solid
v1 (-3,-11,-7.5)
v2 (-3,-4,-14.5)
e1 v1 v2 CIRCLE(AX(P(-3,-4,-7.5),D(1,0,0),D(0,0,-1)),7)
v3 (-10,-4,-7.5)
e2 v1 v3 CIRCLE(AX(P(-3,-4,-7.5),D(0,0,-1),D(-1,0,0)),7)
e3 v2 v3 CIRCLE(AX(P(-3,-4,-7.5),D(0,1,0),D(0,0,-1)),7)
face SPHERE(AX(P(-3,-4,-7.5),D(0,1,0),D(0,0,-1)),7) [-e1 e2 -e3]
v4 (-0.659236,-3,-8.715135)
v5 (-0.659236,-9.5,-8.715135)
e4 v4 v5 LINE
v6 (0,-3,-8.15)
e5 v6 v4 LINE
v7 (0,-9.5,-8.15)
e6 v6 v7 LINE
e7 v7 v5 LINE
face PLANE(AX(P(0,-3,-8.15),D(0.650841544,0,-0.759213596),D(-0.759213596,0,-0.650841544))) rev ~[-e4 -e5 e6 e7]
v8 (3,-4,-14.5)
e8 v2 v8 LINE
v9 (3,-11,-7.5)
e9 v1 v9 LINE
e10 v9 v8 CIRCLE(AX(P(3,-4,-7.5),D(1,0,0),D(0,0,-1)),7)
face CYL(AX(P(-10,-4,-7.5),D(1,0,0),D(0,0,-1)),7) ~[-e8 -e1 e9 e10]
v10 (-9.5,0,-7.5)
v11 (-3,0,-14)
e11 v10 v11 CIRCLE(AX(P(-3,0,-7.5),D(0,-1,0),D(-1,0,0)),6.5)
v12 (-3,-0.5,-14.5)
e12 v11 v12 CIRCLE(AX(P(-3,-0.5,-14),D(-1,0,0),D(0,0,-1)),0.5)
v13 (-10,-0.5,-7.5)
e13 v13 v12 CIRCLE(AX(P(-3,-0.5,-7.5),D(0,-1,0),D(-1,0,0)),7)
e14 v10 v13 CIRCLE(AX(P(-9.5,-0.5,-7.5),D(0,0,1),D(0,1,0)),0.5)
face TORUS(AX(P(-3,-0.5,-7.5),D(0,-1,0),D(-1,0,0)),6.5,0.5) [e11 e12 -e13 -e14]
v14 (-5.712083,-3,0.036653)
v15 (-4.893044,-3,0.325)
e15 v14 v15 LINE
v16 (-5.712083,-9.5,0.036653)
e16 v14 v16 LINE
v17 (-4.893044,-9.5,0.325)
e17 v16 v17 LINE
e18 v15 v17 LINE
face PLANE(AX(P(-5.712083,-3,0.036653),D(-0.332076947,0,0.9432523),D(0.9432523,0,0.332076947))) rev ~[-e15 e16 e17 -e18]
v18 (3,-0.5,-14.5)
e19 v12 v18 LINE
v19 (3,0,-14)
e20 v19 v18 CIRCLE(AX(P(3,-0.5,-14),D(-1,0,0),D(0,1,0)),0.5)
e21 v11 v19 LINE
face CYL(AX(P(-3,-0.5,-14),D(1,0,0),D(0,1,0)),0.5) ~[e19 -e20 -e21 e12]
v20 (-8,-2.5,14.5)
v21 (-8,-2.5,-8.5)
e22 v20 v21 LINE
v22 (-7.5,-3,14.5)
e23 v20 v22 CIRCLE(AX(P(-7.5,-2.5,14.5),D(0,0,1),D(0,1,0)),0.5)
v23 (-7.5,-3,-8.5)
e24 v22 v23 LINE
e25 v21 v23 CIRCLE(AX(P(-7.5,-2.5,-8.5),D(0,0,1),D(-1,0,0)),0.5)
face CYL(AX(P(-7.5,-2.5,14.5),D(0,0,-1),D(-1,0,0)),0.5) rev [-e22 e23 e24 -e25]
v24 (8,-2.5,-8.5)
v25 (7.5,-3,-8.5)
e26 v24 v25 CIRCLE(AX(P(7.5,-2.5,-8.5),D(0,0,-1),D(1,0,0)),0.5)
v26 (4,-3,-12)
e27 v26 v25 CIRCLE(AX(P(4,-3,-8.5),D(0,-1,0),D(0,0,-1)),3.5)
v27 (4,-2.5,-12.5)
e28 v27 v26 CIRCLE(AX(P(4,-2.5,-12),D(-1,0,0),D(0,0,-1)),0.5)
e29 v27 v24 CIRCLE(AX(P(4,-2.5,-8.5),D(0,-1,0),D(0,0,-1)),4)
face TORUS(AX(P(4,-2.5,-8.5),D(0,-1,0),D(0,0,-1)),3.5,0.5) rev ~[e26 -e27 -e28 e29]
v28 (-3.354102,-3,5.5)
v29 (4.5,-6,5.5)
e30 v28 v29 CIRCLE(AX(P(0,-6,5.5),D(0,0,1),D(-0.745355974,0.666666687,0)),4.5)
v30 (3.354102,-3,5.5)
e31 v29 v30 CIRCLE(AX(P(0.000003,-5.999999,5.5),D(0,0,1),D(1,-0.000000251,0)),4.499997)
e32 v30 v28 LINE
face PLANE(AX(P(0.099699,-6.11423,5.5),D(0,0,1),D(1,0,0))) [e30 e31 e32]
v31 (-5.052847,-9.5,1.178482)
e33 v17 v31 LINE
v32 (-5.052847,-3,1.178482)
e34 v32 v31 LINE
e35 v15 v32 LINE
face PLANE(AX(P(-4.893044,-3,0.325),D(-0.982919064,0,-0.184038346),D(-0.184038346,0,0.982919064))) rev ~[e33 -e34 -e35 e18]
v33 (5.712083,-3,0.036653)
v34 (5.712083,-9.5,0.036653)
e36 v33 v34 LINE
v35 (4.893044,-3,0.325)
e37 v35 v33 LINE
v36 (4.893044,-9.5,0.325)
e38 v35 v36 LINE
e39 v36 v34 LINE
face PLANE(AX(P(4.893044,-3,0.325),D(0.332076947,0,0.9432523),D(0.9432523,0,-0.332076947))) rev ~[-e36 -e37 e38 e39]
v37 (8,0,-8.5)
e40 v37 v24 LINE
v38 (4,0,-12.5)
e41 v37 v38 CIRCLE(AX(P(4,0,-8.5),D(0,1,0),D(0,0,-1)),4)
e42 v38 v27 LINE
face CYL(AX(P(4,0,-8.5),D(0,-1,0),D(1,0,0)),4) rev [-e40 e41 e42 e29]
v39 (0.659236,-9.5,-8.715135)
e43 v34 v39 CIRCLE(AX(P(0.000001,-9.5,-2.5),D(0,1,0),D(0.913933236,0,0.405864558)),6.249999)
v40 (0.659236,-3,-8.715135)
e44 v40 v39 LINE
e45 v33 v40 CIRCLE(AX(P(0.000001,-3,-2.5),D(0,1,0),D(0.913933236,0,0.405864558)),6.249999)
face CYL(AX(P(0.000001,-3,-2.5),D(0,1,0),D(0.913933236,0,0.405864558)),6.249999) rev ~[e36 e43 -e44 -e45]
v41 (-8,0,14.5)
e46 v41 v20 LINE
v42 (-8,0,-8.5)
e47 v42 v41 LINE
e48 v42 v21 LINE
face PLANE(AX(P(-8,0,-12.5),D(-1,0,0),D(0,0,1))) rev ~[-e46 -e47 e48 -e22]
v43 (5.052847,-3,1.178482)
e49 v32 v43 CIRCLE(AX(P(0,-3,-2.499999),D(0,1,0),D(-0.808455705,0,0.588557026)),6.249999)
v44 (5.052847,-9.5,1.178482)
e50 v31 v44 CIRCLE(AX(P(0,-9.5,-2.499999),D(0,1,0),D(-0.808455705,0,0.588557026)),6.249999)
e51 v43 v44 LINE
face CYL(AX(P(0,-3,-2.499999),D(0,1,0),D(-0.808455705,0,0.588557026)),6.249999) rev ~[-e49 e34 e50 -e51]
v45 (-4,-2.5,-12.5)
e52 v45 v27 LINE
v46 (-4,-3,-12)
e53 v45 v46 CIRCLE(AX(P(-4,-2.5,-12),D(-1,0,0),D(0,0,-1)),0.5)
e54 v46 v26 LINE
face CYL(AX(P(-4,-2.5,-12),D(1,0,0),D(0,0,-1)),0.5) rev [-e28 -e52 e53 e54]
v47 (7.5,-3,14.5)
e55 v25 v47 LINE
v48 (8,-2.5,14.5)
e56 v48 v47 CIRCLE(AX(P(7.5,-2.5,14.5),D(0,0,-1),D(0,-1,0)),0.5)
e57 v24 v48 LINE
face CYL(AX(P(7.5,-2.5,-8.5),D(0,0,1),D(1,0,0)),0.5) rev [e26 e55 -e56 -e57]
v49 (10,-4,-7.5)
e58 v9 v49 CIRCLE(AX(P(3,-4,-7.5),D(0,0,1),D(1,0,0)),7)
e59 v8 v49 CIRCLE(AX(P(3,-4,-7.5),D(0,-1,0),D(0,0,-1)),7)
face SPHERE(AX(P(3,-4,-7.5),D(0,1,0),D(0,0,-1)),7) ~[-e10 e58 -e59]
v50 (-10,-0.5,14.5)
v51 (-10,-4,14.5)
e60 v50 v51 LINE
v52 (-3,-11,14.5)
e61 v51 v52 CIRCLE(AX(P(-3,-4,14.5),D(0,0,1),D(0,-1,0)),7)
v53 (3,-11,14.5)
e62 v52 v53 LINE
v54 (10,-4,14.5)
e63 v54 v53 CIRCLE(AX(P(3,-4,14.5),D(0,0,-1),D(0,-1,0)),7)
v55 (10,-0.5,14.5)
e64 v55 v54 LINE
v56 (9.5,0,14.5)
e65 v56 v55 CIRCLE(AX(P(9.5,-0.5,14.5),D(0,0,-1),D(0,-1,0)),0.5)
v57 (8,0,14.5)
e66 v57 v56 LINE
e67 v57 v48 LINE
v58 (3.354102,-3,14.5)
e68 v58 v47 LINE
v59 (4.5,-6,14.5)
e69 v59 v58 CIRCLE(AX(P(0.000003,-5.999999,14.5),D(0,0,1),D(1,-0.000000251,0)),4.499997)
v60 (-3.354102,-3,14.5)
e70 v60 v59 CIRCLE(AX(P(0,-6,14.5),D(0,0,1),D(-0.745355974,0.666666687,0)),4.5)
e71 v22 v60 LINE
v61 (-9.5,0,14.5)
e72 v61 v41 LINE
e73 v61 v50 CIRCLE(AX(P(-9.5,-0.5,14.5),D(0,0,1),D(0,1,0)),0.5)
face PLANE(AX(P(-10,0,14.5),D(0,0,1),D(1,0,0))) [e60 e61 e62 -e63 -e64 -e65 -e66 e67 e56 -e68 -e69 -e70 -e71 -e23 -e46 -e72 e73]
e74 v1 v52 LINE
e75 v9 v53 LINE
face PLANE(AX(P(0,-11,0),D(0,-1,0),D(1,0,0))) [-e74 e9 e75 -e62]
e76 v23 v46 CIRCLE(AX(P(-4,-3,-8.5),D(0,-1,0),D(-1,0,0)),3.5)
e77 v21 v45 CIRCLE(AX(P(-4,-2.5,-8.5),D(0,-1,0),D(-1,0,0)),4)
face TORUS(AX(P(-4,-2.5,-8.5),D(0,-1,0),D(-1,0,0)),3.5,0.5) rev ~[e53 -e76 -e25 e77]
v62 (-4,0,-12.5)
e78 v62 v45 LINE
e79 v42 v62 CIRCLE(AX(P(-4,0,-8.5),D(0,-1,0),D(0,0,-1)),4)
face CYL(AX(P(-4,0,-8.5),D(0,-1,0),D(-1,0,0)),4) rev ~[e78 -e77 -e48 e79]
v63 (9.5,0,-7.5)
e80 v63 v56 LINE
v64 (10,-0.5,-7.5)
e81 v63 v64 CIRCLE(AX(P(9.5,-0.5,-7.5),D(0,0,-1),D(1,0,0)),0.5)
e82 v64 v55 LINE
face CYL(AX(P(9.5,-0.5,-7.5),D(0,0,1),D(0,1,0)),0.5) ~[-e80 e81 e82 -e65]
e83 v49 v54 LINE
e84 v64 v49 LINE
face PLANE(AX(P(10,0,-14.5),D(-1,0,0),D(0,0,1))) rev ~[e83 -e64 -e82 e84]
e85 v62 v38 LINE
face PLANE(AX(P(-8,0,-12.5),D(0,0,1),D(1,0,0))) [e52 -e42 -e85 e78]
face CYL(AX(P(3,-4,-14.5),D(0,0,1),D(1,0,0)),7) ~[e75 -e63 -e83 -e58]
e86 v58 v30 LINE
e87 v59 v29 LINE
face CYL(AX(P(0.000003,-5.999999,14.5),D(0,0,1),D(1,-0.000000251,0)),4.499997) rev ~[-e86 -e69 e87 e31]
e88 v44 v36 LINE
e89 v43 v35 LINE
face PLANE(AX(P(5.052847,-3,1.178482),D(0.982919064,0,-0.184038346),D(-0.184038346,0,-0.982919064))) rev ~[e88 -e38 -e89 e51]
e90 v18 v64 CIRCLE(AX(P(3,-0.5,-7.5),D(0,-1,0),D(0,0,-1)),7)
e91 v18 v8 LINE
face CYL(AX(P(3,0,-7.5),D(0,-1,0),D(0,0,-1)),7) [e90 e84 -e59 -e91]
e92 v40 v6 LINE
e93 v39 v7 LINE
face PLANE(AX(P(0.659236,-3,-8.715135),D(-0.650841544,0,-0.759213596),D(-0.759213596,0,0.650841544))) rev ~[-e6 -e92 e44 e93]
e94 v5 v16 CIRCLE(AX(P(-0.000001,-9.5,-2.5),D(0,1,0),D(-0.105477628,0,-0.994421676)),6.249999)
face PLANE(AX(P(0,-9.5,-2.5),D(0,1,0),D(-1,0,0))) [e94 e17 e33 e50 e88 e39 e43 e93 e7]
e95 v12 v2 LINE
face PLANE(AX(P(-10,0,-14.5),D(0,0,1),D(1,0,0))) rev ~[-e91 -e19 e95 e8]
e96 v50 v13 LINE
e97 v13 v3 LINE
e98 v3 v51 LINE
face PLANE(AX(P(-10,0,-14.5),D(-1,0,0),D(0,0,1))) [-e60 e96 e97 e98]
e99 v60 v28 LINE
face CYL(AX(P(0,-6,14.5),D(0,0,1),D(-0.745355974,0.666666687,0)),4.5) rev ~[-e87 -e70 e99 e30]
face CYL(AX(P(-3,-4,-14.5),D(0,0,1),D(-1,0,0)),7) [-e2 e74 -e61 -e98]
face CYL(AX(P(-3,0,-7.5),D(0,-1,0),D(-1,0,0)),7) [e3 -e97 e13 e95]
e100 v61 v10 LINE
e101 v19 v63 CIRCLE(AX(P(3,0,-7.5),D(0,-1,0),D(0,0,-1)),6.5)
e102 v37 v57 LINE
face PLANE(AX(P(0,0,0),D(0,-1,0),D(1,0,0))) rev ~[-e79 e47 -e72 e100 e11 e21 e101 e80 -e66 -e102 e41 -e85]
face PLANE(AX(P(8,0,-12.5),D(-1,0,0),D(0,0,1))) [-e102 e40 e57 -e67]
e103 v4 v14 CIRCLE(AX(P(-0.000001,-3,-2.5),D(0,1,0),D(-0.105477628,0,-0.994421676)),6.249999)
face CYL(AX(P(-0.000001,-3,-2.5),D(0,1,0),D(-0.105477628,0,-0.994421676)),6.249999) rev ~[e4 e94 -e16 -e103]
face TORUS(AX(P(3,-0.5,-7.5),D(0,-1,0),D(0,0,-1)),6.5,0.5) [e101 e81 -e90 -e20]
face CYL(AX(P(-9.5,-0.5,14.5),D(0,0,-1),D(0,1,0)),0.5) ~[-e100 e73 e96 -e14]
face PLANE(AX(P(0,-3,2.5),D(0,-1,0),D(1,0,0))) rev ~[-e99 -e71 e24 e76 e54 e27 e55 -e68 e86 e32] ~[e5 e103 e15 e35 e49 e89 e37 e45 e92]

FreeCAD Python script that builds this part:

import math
import FreeCAD as App
import Part
import Sketcher
from FreeCAD import Vector
Q = App.Units.Quantity


def edges_at(feature, points):
    """Names of the edges that pass closest to the given points."""
    edges = feature.Shape.Edges
    near = lambda p: min(range(len(edges)), key=lambda i: edges[i].distToShape(Part.Vertex(*p))[0])
    return sorted({f"Edge{near(p) + 1}" for p in points})

doc = App.newDocument("Part")
body = doc.addObject("PartDesign::Body", "Body")

# Sketch on XZ plane
sketch1 = doc.addObject("Sketcher::SketchObject", "Sketch")
body.addObject(sketch1)
sketch1.AttachmentSupport = (doc.XZ_Plane, [""])
sketch1.MapMode = "FlatFace"
sketch1.addGeometry([
    Part.LineSegment(Vector(-10, 14, 0), Vector(-10, -14, 0)),
    Part.LineSegment(Vector(-10, -14, 0), Vector(10, -14, 0)),
    Part.LineSegment(Vector(10, -14, 0), Vector(10, 14, 0)),
    Part.LineSegment(Vector(10, 14, 0), Vector(-10, 14, 0)),
], False)
sketch1.addConstraint([
    Sketcher.Constraint("Coincident", 0, 2, 1, 1),
    Sketcher.Constraint("Coincident", 1, 2, 2, 1),
    Sketcher.Constraint("Coincident", 2, 2, 3, 1),
    Sketcher.Constraint("Coincident", 3, 2, 0, 1),
    Sketcher.Constraint("Vertical", 0),
    Sketcher.Constraint("Horizontal", 1),
    Sketcher.Constraint("Vertical", 2),
    Sketcher.Constraint("Horizontal", 3),
    Sketcher.Constraint("Symmetric", 0, 2, 2, 2, -1, 1),
    Sketcher.Constraint("DistanceX", 1, 1, 1, 2, Q("20 mm")),
    Sketcher.Constraint("DistanceY", 0, 2, 0, 1, Q("29 mm")),
])
pad1 = doc.addObject("PartDesign::Pad", "Pad")
body.addObject(pad1)
pad1.Profile = sketch1
pad1.Length = 11

# Sketch on XZ plane
sketch2 = doc.addObject("Sketcher::SketchObject", "Sketch001")
body.addObject(sketch2)
sketch2.AttachmentSupport = (doc.XZ_Plane, [""])
sketch2.MapMode = "FlatFace"
sketch2.addGeometry([
    Part.LineSegment(Vector(-8, 18, 0), Vector(-8, -12, 0)),
    Part.LineSegment(Vector(-8, -12, 0), Vector(8, -12, 0)),
    Part.LineSegment(Vector(8, -12, 0), Vector(8, 18, 0)),
    Part.LineSegment(Vector(8, 18, 0), Vector(-8, 18, 0)),
], False)
sketch2.addConstraint([
    Sketcher.Constraint("Coincident", 0, 2, 1, 1),
    Sketcher.Constraint("Coincident", 1, 2, 2, 1),
    Sketcher.Constraint("Coincident", 2, 2, 3, 1),
    Sketcher.Constraint("Coincident", 3, 2, 0, 1),
    Sketcher.Constraint("Vertical", 0),
    Sketcher.Constraint("Horizontal", 1),
    Sketcher.Constraint("Vertical", 2),
    Sketcher.Constraint("Horizontal", 3),
    Sketcher.Constraint("DistanceX", 1, 1, 1, 2, Q("16 mm")),
    Sketcher.Constraint("DistanceY", 0, 2, 0, 1, Q("30 mm")),
    Sketcher.Constraint("DistanceX", 0, 2, -1, 1, Q("8 mm")),
    Sketcher.Constraint("DistanceY", 0, 2, -1, 1, Q("12.5 mm")),
])
pocket1 = doc.addObject("PartDesign::Pocket", "Pocket")
body.addObject(pocket1)
pocket1.Profile = sketch2
pocket1.Length = 3
pocket1.Reversed = True

# Sketch on XZ plane
sketch3 = doc.addObject("Sketcher::SketchObject", "Sketch002")
body.addObject(sketch3)
sketch3.AttachmentSupport = (doc.XZ_Plane, [""])
sketch3.MapMode = "FlatFace"
sketch3.AttachmentOffset = App.Placement(Vector(0, 0, 3), App.Rotation())
sketch3.addGeometry([
    Part.LineSegment(Vector(0, -8.2, 0), Vector(-0.7, -8.7, 0)),  # 0
    Part.ArcOfCircle(Part.Circle(Vector(0, -2.5, 0), Vector(0, 0, 1), 6.2), math.radians(156), math.radians(264)),  # 1
    Part.LineSegment(Vector(-5.7, 0, 0), Vector(-4.9, 0.3, 0)),  # 2
    Part.LineSegment(Vector(-4.9, 0.3, 0), Vector(-5.1, 1.2, 0)),  # 3
    Part.ArcOfCircle(Part.Circle(Vector(0, -2.5, 0), Vector(0, 0, 1), 6.2), math.radians(36), math.radians(144)),  # 4
    Part.LineSegment(Vector(5.1, 1.2, 0), Vector(4.9, 0.3, 0)),  # 5
    Part.LineSegment(Vector(4.9, 0.3, 0), Vector(5.7, 0, 0)),  # 6
    Part.ArcOfCircle(Part.Circle(Vector(0, -2.5, 0), Vector(0, 0, 1), 6.2), math.radians(-84), math.radians(24)),  # 7
    Part.LineSegment(Vector(0.7, -8.7, 0), Vector(0, -8.2, 0)),  # 8
], False)
sketch3.addConstraint([
    Sketcher.Constraint("Coincident", 0, 2, 1, 2),
    Sketcher.Constraint("Coincident", 1, 1, 2, 1),
    Sketcher.Constraint("Coincident", 2, 2, 3, 1),
    Sketcher.Constraint("Coincident", 3, 2, 4, 2),
    Sketcher.Constraint("Coincident", 4, 1, 5, 1),
    Sketcher.Constraint("Coincident", 5, 2, 6, 1),
    Sketcher.Constraint("Coincident", 6, 2, 7, 2),
    Sketcher.Constraint("Coincident", 7, 1, 8, 1),
    Sketcher.Constraint("Coincident", 8, 2, 0, 1),
    Sketcher.Constraint("Coincident", 4, 3, 1, 3),
    Sketcher.Constraint("Coincident", 7, 3, 1, 3),
    Sketcher.Constraint("Equal", 1, 4),
    Sketcher.Constraint("Equal", 4, 7),
    Sketcher.Constraint("Symmetric", 3, 2, 4, 1, -2),
    Sketcher.Constraint("Symmetric", 2, 2, 5, 2, -2),
    Sketcher.Constraint("PointOnObject", 8, 2, -2),
    Sketcher.Constraint("Horizontal", 1, 1, 6, 2),
    Sketcher.Constraint("Horizontal", 0, 2, 7, 1),
    Sketcher.Constraint("Equal", 0, 2),
    Sketcher.Constraint("Equal", 2, 3),
    Sketcher.Constraint("Radius", 1, Q("6.249999 mm")),
    Sketcher.Constraint("DistanceY", 1, 3, -1, 1, Q("2.5 mm")),
    Sketcher.Constraint("DistanceY", 8, 2, -1, 1, Q("8.15 mm")),
    Sketcher.Constraint("DistanceY", -1, 1, 2, 2, Q("0.325 mm")),
    Sketcher.Constraint("DistanceY", 4, 3, 1, 1, Q("2.536652 mm")),
    Sketcher.Constraint("DistanceY", 0, 2, 1, 1, Q("8.751788 mm")),
])
pocket2 = doc.addObject("PartDesign::Pocket", "Pocket001")
body.addObject(pocket2)
pocket2.Profile = sketch3
pocket2.Length = 6.5
pocket2.Reversed = True

# Sketch on XY plane
sketch4 = doc.addObject("Sketcher::SketchObject", "Sketch003")
body.addObject(sketch4)
sketch4.AttachmentSupport = (doc.XY_Plane, [""])
sketch4.MapMode = "FlatFace"
sketch4.AttachmentOffset = App.Placement(Vector(0, 0, 14.5), App.Rotation())
sketch4.addGeometry([
    Part.ArcOfCircle(Part.Circle(Vector(0, -6, 0), Vector(0, 0, 1), 4.5), math.radians(138), math.radians(360)),
    Part.ArcOfCircle(Part.Circle(Vector(0, -6, 0), Vector(0, 0, 1), 4.5), math.radians(0), math.radians(42)),
    Part.LineSegment(Vector(3.4, -3, 0), Vector(-3.4, -3, 0)),
], False)
sketch4.addConstraint([
    Sketcher.Constraint("Tangent", 0, 2, 1, 1),
    Sketcher.Constraint("Coincident", 1, 2, 2, 1),
    Sketcher.Constraint("Coincident", 2, 2, 0, 1),
    Sketcher.Constraint("Horizontal", 2),
    Sketcher.Constraint("PointOnObject", 0, 3, -2),
    Sketcher.Constraint("Horizontal", 1, 3, 0, 2),
    Sketcher.Constraint("Radius", 0, Q("4.5 mm")),
    Sketcher.Constraint("DistanceY", 0, 3, -1, 1, Q("6 mm")),
    Sketcher.Constraint("DistanceY", 1, 2, -1, 1, Q("3 mm")),
    Sketcher.Constraint("Radius", 1, Q("4.499997 mm")),
])
pocket3 = doc.addObject("PartDesign::Pocket", "Pocket002")
body.addObject(pocket3)
pocket3.Profile = sketch4
pocket3.Length = 9
doc.recompute()

fillet = doc.addObject("PartDesign::Fillet", "Fillet")
body.addObject(fillet)
fillet.Base = (pocket3, edges_at(pocket3, [(8, -1.5, -12.5), (-8, -1.5, -12.5)]))
fillet.Radius = 4
doc.recompute()

fillet2 = doc.addObject("PartDesign::Fillet", "Fillet001")
body.addObject(fillet2)
fillet2.Base = (fillet, edges_at(fillet, [
    (-10, -5.5, -14.5),
    (10, -5.5, -14.5),
    (0, -11, -14.5),
    (10, -11, 0),
    (-10, -11, 0),
]))
fillet2.Radius = 7
doc.recompute()

fillet3 = doc.addObject("PartDesign::Fillet", "Fillet002")
body.addObject(fillet3)
fillet3.Base = (fillet2, edges_at(fillet2, [(8, -3, 3), (10, 0, 3.5)]))
fillet3.Radius = 0.5

doc.recompute()
